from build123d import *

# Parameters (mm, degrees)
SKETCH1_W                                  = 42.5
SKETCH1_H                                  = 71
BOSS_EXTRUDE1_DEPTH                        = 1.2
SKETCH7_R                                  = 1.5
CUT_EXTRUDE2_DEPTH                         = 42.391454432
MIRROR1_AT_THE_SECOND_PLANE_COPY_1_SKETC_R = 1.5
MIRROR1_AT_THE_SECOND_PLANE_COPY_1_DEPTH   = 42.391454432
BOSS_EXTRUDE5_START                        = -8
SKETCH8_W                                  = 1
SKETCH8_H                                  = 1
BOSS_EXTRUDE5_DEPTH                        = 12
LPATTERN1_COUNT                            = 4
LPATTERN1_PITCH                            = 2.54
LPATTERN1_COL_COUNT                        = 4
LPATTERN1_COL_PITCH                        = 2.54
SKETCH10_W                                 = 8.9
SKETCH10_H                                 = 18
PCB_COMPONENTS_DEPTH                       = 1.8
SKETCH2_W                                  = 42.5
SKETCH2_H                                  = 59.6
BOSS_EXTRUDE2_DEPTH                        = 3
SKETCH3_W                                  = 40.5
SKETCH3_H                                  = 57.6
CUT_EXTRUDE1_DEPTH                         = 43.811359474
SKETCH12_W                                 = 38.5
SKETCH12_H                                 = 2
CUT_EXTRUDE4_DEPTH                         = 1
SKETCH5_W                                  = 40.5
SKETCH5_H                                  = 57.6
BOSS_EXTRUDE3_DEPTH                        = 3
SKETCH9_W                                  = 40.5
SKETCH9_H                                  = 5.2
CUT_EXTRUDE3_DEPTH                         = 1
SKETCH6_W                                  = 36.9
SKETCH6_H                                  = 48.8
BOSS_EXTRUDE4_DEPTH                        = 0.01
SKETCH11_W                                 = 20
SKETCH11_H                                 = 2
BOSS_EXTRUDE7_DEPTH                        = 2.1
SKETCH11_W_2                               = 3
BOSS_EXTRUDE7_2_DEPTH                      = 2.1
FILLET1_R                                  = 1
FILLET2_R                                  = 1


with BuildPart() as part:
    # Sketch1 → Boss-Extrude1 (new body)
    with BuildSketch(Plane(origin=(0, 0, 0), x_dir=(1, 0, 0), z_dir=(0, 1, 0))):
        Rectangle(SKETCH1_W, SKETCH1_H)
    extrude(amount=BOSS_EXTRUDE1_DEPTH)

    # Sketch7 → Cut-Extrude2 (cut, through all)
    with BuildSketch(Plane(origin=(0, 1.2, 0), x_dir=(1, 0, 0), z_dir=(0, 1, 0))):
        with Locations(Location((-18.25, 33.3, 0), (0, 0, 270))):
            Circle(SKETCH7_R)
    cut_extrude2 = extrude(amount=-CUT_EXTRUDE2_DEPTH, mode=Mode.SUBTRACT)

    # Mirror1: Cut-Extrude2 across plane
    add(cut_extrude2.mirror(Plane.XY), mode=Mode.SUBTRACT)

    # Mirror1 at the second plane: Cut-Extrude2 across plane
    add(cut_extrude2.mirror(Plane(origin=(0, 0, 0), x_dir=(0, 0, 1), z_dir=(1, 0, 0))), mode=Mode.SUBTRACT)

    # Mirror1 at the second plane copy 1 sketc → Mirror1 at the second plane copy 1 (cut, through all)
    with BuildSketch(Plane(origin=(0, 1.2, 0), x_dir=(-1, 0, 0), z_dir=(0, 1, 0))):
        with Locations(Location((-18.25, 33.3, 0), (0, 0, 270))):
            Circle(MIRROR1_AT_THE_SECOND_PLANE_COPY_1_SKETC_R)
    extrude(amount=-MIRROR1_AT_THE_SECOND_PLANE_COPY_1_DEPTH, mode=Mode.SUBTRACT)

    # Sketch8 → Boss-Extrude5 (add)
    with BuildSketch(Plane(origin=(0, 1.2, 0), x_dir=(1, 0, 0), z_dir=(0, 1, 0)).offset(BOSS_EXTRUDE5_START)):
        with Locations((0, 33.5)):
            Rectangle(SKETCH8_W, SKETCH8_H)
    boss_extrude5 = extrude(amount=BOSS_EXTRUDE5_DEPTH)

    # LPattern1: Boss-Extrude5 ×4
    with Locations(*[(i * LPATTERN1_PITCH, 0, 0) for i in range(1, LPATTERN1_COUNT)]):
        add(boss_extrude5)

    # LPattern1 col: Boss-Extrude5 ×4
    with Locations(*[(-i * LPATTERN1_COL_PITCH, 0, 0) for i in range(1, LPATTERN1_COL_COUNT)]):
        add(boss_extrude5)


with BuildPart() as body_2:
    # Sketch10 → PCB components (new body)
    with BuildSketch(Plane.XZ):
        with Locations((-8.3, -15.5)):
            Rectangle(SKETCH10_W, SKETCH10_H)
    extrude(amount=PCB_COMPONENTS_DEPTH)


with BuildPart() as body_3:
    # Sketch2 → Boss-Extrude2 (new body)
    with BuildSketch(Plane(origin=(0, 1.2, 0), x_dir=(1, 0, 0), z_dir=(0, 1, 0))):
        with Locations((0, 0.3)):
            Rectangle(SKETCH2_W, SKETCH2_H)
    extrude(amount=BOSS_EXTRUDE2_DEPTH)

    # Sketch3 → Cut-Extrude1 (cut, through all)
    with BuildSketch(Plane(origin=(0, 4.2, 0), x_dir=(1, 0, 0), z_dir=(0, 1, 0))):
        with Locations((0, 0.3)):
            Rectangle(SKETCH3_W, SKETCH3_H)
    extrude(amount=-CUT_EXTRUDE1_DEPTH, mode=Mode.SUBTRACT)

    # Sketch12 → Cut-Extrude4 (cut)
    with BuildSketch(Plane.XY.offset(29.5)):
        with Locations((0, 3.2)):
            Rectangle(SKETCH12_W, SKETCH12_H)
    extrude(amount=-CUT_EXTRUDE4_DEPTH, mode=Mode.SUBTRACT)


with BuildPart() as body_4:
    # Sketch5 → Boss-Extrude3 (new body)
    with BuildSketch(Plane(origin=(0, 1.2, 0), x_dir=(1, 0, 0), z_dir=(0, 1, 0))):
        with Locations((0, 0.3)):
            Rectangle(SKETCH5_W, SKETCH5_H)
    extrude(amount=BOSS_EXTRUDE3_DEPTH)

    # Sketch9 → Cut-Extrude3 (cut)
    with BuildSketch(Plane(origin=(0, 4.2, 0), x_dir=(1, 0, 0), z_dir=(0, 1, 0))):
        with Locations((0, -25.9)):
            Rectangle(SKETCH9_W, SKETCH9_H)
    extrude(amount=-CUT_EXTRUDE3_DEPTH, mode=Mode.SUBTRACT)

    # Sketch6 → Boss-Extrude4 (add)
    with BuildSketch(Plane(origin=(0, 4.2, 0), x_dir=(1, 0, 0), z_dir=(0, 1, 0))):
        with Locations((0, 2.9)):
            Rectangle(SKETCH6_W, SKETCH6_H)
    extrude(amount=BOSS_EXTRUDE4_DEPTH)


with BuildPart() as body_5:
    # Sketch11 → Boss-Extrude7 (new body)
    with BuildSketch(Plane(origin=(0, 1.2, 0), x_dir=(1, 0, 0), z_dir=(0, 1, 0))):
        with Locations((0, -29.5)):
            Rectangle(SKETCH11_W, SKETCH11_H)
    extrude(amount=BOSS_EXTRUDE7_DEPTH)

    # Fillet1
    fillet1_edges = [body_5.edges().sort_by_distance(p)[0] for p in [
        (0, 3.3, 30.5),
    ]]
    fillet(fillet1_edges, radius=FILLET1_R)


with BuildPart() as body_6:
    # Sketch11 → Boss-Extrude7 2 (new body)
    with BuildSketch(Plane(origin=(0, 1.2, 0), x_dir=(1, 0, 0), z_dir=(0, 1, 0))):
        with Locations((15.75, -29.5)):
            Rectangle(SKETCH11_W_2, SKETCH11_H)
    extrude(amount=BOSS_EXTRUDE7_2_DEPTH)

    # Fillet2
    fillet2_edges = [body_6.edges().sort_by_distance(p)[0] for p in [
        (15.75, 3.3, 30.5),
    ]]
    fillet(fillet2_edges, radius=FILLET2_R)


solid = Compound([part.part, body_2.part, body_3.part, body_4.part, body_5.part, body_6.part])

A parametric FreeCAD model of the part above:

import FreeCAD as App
import Part
import Sketcher
Q = App.Units.Quantity


def edges_at(feature, points):
    """Names of the edges that pass closest to the given points."""
    edges = feature.Shape.Edges
    near = lambda p: min(range(len(edges)), key=lambda i: edges[i].distToShape(Part.Vertex(*p))[0])
    return sorted({f"Edge{near(p) + 1}" for p in points})

doc = App.newDocument("Part")
body = doc.addObject("PartDesign::Body", "Body")

sketch1 = body.newObject("Sketcher::SketchObject", "Sketch")
sketch1.AttachmentSupport = (doc.getObject("XZ_Plane"), [""])
sketch1.MapMode = "FlatFace"
sketch1.addGeometry([
    Part.LineSegment(App.Vector(-21, -36, 0), App.Vector(-21, 36, 0)),
    Part.LineSegment(App.Vector(-21, 36, 0), App.Vector(21, 36, 0)),
    Part.LineSegment(App.Vector(21, 36, 0), App.Vector(21, -36, 0)),
    Part.LineSegment(App.Vector(21, -36, 0), App.Vector(-21, -36, 0)),
], False)
sketch1.addConstraint([
    Sketcher.Constraint("Coincident", 0, 2, 1, 1),
    Sketcher.Constraint("Coincident", 1, 2, 2, 1),
    Sketcher.Constraint("Coincident", 2, 2, 3, 1),
    Sketcher.Constraint("Coincident", 3, 2, 0, 1),
    Sketcher.Constraint("Vertical", 0),
    Sketcher.Constraint("Horizontal", 1),
    Sketcher.Constraint("Vertical", 2),
    Sketcher.Constraint("Horizontal", 3),
    Sketcher.Constraint("Symmetric", 0, 2, 2, 2, -1, 1),
    Sketcher.Constraint("DistanceY", 0, 1, 0, 2, Q("71 mm")),
    Sketcher.Constraint("DistanceX", 1, 1, 1, 2, Q("42.5 mm")),
])
pad1 = body.newObject("PartDesign::Pad", "Pad")
pad1.Profile = sketch1
pad1.Length = 1.2
pad1.Reversed = True

sketch2 = body.newObject("Sketcher::SketchObject", "Sketch001")
sketch2.AttachmentSupport = (doc.getObject("XZ_Plane"), [""])
sketch2.MapMode = "FlatFace"
sketch2.AttachmentOffset = App.Placement(App.Vector(0, 0, -1.2), App.Rotation())
sketch2.addGeometry(Part.Circle(App.Vector(-18.2, -33.3, 0), App.Vector(0, 0, 1), 1.5), False)
sketch2.addConstraint([
    Sketcher.Constraint("Diameter", 0, Q("3 mm")),
    Sketcher.Constraint("DistanceY", 0, 3, -1, 1, Q("33.3 mm")),
    Sketcher.Constraint("DistanceX", 0, 3, -1, 1, Q("18.25 mm")),
])
pocket1 = body.newObject("PartDesign::Pocket", "Pocket")
pocket1.Profile = sketch2
pocket1.Type = "ThroughAll"
pocket1.Reversed = True
doc.recompute()

mirrored = body.newObject("PartDesign::Mirrored", "Mirrored")
mirrored.Originals = [pocket1]
mirrored.MirrorPlane = (doc.getObject("XY_Plane"), [""])
body.Tip = mirrored
doc.recompute()

mirrored2 = body.newObject("PartDesign::Mirrored", "Mirrored001")
mirrored2.Originals = [pocket1]
mirrored2.MirrorPlane = (doc.getObject("YZ_Plane"), [""])
body.Tip = mirrored2

sketch3 = body.newObject("Sketcher::SketchObject", "Sketch002")
sketch3.AttachmentSupport = (doc.getObject("XZ_Plane"), [""])
sketch3.MapMode = "FlatFace"
sketch3.AttachmentOffset = App.Placement(App.Vector(0, 0, -1.2), App.Rotation())
sketch3.addGeometry(Part.Circle(App.Vector(18.2, 33.3, 0), App.Vector(0, 0, 1), 1.5), False)
sketch3.addConstraint([
    Sketcher.Constraint("Diameter", 0, Q("3 mm")),
    Sketcher.Constraint("DistanceY", -1, 1, 0, 3, Q("33.3 mm")),
    Sketcher.Constraint("DistanceX", -1, 1, 0, 3, Q("18.25 mm")),
])
pocket2 = body.newObject("PartDesign::Pocket", "Pocket001")
pocket2.Profile = sketch3
pocket2.Type = "ThroughAll"
pocket2.Reversed = True

sketch4 = body.newObject("Sketcher::SketchObject", "Sketch003")
sketch4.AttachmentSupport = (doc.getObject("XZ_Plane"), [""])
sketch4.MapMode = "FlatFace"
sketch4.AttachmentOffset = App.Placement(App.Vector(0, 0, 6.8), App.Rotation())
sketch4.addGeometry([
    Part.LineSegment(App.Vector(-0.5, -34, 0), App.Vector(-0.5, -33, 0)),
    Part.LineSegment(App.Vector(-0.5, -33, 0), App.Vector(0.5, -33, 0)),
    Part.LineSegment(App.Vector(0.5, -33, 0), App.Vector(0.5, -34, 0)),
    Part.LineSegment(App.Vector(0.5, -34, 0), App.Vector(-0.5, -34, 0)),
], False)
sketch4.addConstraint([
    Sketcher.Constraint("Coincident", 0, 2, 1, 1),
    Sketcher.Constraint("Coincident", 1, 2, 2, 1),
    Sketcher.Constraint("Coincident", 2, 2, 3, 1),
    Sketcher.Constraint("Coincident", 3, 2, 0, 1),
    Sketcher.Constraint("Vertical", 0),
    Sketcher.Constraint("Horizontal", 1),
    Sketcher.Constraint("Vertical", 2),
    Sketcher.Constraint("Horizontal", 3),
    Sketcher.Constraint("Equal", 3, 0),
    Sketcher.Constraint("DistanceX", 1, 1, 1, 2, Q("1 mm")),
    Sketcher.Constraint("DistanceY", 0, 2, -1, 1, Q("33 mm")),
    Sketcher.Constraint("DistanceX", 0, 2, -1, 1, Q("0.5 mm")),
])
pad2 = body.newObject("PartDesign::Pad", "Pad001")
pad2.Profile = sketch4
pad2.Length = 12
pad2.Reversed = True
doc.recompute()

linearpattern = body.newObject("PartDesign::LinearPattern", "LinearPattern")
linearpattern.Originals = [pad2]
linearpattern.Direction = (doc.getObject("X_Axis"), [""])
linearpattern.Mode = "offset"
linearpattern.Offset = 2.54
linearpattern.Occurrences = 4
body.Tip = linearpattern
doc.recompute()

linearpattern2 = body.newObject("PartDesign::LinearPattern", "LinearPattern001")
linearpattern2.Originals = [pad2]
linearpattern2.Direction = (doc.getObject("X_Axis"), [""])
linearpattern2.Mode = "offset"
linearpattern2.Offset = 2.54
linearpattern2.Occurrences = 4
linearpattern2.Reversed = True
body.Tip = linearpattern2
body2 = doc.addObject("PartDesign::Body", "Body001")

sketch5 = body2.newObject("Sketcher::SketchObject", "Sketch004")
sketch5.AttachmentSupport = (doc.getObject("XZ_Plane001"), [""])
sketch5.MapMode = "FlatFace"
sketch5.addGeometry([
    Part.LineSegment(App.Vector(-13, -6, 0), App.Vector(-13, -24, 0)),
    Part.LineSegment(App.Vector(-13, -24, 0), App.Vector(-4, -24, 0)),
    Part.LineSegment(App.Vector(-4, -24, 0), App.Vector(-4, -6, 0)),
    Part.LineSegment(App.Vector(-4, -6, 0), App.Vector(-13, -6, 0)),
], False)
sketch5.addConstraint([
    Sketcher.Constraint("Coincident", 0, 2, 1, 1),
    Sketcher.Constraint("Coincident", 1, 2, 2, 1),
    Sketcher.Constraint("Coincident", 2, 2, 3, 1),
    Sketcher.Constraint("Coincident", 3, 2, 0, 1),
    Sketcher.Constraint("Vertical", 0),
    Sketcher.Constraint("Horizontal", 1),
    Sketcher.Constraint("Vertical", 2),
    Sketcher.Constraint("Horizontal", 3),
    Sketcher.Constraint("DistanceY", 0, 2, 0, 1, Q("18 mm")),
    Sketcher.Constraint("DistanceX", 1, 1, 1, 2, Q("8.9 mm")),
    Sketcher.Constraint("DistanceY", 0, 2, -1, 1, Q("24.5 mm")),
    Sketcher.Constraint("DistanceX", 0, 2, -1, 1, Q("12.75 mm")),
])
pad3 = body2.newObject("PartDesign::Pad", "Pad002")
pad3.Profile = sketch5
pad3.Length = 1.8
body3 = doc.addObject("PartDesign::Body", "Body002")

sketch6 = body3.newObject("Sketcher::SketchObject", "Sketch005")
sketch6.AttachmentSupport = (doc.getObject("XZ_Plane002"), [""])
sketch6.MapMode = "FlatFace"
sketch6.AttachmentOffset = App.Placement(App.Vector(0, 0, -1.2), App.Rotation())
sketch6.addGeometry([
    Part.LineSegment(App.Vector(-21, -30, 0), App.Vector(-21, 30, 0)),
    Part.LineSegment(App.Vector(-21, 30, 0), App.Vector(21, 30, 0)),
    Part.LineSegment(App.Vector(21, 30, 0), App.Vector(21, -30, 0)),
    Part.LineSegment(App.Vector(21, -30, 0), App.Vector(-21, -30, 0)),
], False)
sketch6.addConstraint([
    Sketcher.Constraint("Coincident", 0, 2, 1, 1),
    Sketcher.Constraint("Coincident", 1, 2, 2, 1),
    Sketcher.Constraint("Coincident", 2, 2, 3, 1),
    Sketcher.Constraint("Coincident", 3, 2, 0, 1),
    Sketcher.Constraint("Vertical", 0),
    Sketcher.Constraint("Horizontal", 1),
    Sketcher.Constraint("Vertical", 2),
    Sketcher.Constraint("Horizontal", 3),
    Sketcher.Constraint("DistanceX", 1, 1, 1, 2, Q("42.5 mm")),
    Sketcher.Constraint("DistanceY", 0, 1, 0, 2, Q("59.6 mm")),
    Sketcher.Constraint("DistanceY", -1, 1, 0, 2, Q("29.5 mm")),
    Sketcher.Constraint("DistanceX", 0, 2, -1, 1, Q("21.25 mm")),
])
pad4 = body3.newObject("PartDesign::Pad", "Pad003")
pad4.Profile = sketch6
pad4.Length = 3
pad4.Reversed = True

sketch7 = body3.newObject("Sketcher::SketchObject", "Sketch006")
sketch7.AttachmentSupport = (doc.getObject("XZ_Plane002"), [""])
sketch7.MapMode = "FlatFace"
sketch7.AttachmentOffset = App.Placement(App.Vector(0, 0, -4.2), App.Rotation())
sketch7.addGeometry([
    Part.LineSegment(App.Vector(-20, -29, 0), App.Vector(-20, 28, 0)),
    Part.LineSegment(App.Vector(-20, 28, 0), App.Vector(20, 28, 0)),
    Part.LineSegment(App.Vector(20, 28, 0), App.Vector(20, -29, 0)),
    Part.LineSegment(App.Vector(20, -29, 0), App.Vector(-20, -29, 0)),
], False)
sketch7.addConstraint([
    Sketcher.Constraint("Coincident", 0, 2, 1, 1),
    Sketcher.Constraint("Coincident", 1, 2, 2, 1),
    Sketcher.Constraint("Coincident", 2, 2, 3, 1),
    Sketcher.Constraint("Coincident", 3, 2, 0, 1),
    Sketcher.Constraint("Vertical", 0),
    Sketcher.Constraint("Horizontal", 1),
    Sketcher.Constraint("Vertical", 2),
    Sketcher.Constraint("Horizontal", 3),
    Sketcher.Constraint("DistanceX", 1, 1, 1, 2, Q("40.5 mm")),
    Sketcher.Constraint("DistanceY", 0, 1, 0, 2, Q("57.6 mm")),
    Sketcher.Constraint("DistanceY", -1, 1, 0, 2, Q("28.5 mm")),
    Sketcher.Constraint("DistanceX", 0, 2, -1, 1, Q("20.25 mm")),
])
pocket3 = body3.newObject("PartDesign::Pocket", "Pocket002")
pocket3.Profile = sketch7
pocket3.Type = "ThroughAll"
pocket3.Reversed = True

sketch8 = body3.newObject("Sketcher::SketchObject", "Sketch007")
sketch8.AttachmentSupport = (doc.getObject("XY_Plane002"), [""])
sketch8.MapMode = "FlatFace"
sketch8.AttachmentOffset = App.Placement(App.Vector(0, 0, 29.5), App.Rotation())
sketch8.addGeometry([
    Part.LineSegment(App.Vector(-19.2, 4.2, 0), App.Vector(-19.2, 2.2, 0)),
    Part.LineSegment(App.Vector(-19.2, 2.2, 0), App.Vector(19.2, 2.2, 0)),
    Part.LineSegment(App.Vector(19.2, 2.2, 0), App.Vector(19.2, 4.2, 0)),
    Part.LineSegment(App.Vector(19.2, 4.2, 0), App.Vector(-19.2, 4.2, 0)),
], False)
sketch8.addConstraint([
    Sketcher.Constraint("Coincident", 0, 2, 1, 1),
    Sketcher.Constraint("Coincident", 1, 2, 2, 1),
    Sketcher.Constraint("Coincident", 2, 2, 3, 1),
    Sketcher.Constraint("Coincident", 3, 2, 0, 1),
    Sketcher.Constraint("Vertical", 0),
    Sketcher.Constraint("Horizontal", 1),
    Sketcher.Constraint("Vertical", 2),
    Sketcher.Constraint("Horizontal", 3),
    Sketcher.Constraint("DistanceY", 0, 2, 0, 1, Q("2 mm")),
    Sketcher.Constraint("DistanceX", 1, 1, 1, 2, Q("38.5 mm")),
    Sketcher.Constraint("DistanceY", -1, 1, 0, 2, Q("2.2 mm")),
    Sketcher.Constraint("DistanceX", 0, 2, -1, 1, Q("19.25 mm")),
])
pocket4 = body3.newObject("PartDesign::Pocket", "Pocket003")
pocket4.Profile = sketch8
pocket4.Length = 1
body4 = doc.addObject("PartDesign::Body", "Body003")

sketch9 = body4.newObject("Sketcher::SketchObject", "Sketch008")
sketch9.AttachmentSupport = (doc.getObject("XZ_Plane003"), [""])
sketch9.MapMode = "FlatFace"
sketch9.AttachmentOffset = App.Placement(App.Vector(0, 0, -1.2), App.Rotation())
sketch9.addGeometry([
    Part.LineSegment(App.Vector(-20, -29, 0), App.Vector(-20, 28, 0)),
    Part.LineSegment(App.Vector(-20, 28, 0), App.Vector(20, 28, 0)),
    Part.LineSegment(App.Vector(20, 28, 0), App.Vector(20, -29, 0)),
    Part.LineSegment(App.Vector(20, -29, 0), App.Vector(-20, -29, 0)),
], False)
sketch9.addConstraint([
    Sketcher.Constraint("Coincident", 0, 2, 1, 1),
    Sketcher.Constraint("Coincident", 1, 2, 2, 1),
    Sketcher.Constraint("Coincident", 2, 2, 3, 1),
    Sketcher.Constraint("Coincident", 3, 2, 0, 1),
    Sketcher.Constraint("Vertical", 0),
    Sketcher.Constraint("Horizontal", 1),
    Sketcher.Constraint("Vertical", 2),
    Sketcher.Constraint("Horizontal", 3),
    Sketcher.Constraint("DistanceX", 1, 1, 1, 2, Q("40.5 mm")),
    Sketcher.Constraint("DistanceY", 0, 1, 0, 2, Q("57.6 mm")),
    Sketcher.Constraint("DistanceY", -1, 1, 0, 2, Q("28.5 mm")),
    Sketcher.Constraint("DistanceX", 0, 2, -1, 1, Q("20.25 mm")),
])
pad5 = body4.newObject("PartDesign::Pad", "Pad004")
pad5.Profile = sketch9
pad5.Length = 3
pad5.Reversed = True

sketch10 = body4.newObject("Sketcher::SketchObject", "Sketch009")
sketch10.AttachmentSupport = (doc.getObject("XZ_Plane003"), [""])
sketch10.MapMode = "FlatFace"
sketch10.AttachmentOffset = App.Placement(App.Vector(0, 0, -4.2), App.Rotation())
sketch10.addGeometry([
    Part.LineSegment(App.Vector(-20, 23, 0), App.Vector(-20, 28, 0)),
    Part.LineSegment(App.Vector(-20, 28, 0), App.Vector(20, 28, 0)),
    Part.LineSegment(App.Vector(20, 28, 0), App.Vector(20, 23, 0)),
    Part.LineSegment(App.Vector(20, 23, 0), App.Vector(-20, 23, 0)),
], False)
sketch10.addConstraint([
    Sketcher.Constraint("Coincident", 0, 2, 1, 1),
    Sketcher.Constraint("Coincident", 1, 2, 2, 1),
    Sketcher.Constraint("Coincident", 2, 2, 3, 1),
    Sketcher.Constraint("Coincident", 3, 2, 0, 1),
    Sketcher.Constraint("Vertical", 0),
    Sketcher.Constraint("Horizontal", 1),
    Sketcher.Constraint("Vertical", 2),
    Sketcher.Constraint("Horizontal", 3),
    Sketcher.Constraint("DistanceX", 1, 1, 1, 2, Q("40.5 mm")),
    Sketcher.Constraint("DistanceY", 0, 1, 0, 2, Q("5.2 mm")),
    Sketcher.Constraint("DistanceY", -1, 1, 0, 2, Q("28.5 mm")),
    Sketcher.Constraint("DistanceX", 0, 2, -1, 1, Q("20.25 mm")),
])
pocket5 = body4.newObject("PartDesign::Pocket", "Pocket004")
pocket5.Profile = sketch10
pocket5.Length = 1
pocket5.Reversed = True

sketch11 = body4.newObject("Sketcher::SketchObject", "Sketch010")
sketch11.AttachmentSupport = (doc.getObject("XZ_Plane003"), [""])
sketch11.MapMode = "FlatFace"
sketch11.AttachmentOffset = App.Placement(App.Vector(0, 0, -4.2), App.Rotation())
sketch11.addGeometry([
    Part.LineSegment(App.Vector(-18, -27, 0), App.Vector(-18, 22, 0)),
    Part.LineSegment(App.Vector(-18, 22, 0), App.Vector(18, 22, 0)),
    Part.LineSegment(App.Vector(18, 22, 0), App.Vector(18, -27, 0)),
    Part.LineSegment(App.Vector(18, -27, 0), App.Vector(-18, -27, 0)),
], False)
sketch11.addConstraint([
    Sketcher.Constraint("Coincident", 0, 2, 1, 1),
    Sketcher.Constraint("Coincident", 1, 2, 2, 1),
    Sketcher.Constraint("Coincident", 2, 2, 3, 1),
    Sketcher.Constraint("Coincident", 3, 2, 0, 1),
    Sketcher.Constraint("Vertical", 0),
    Sketcher.Constraint("Horizontal", 1),
    Sketcher.Constraint("Vertical", 2),
    Sketcher.Constraint("Horizontal", 3),
    Sketcher.Constraint("DistanceX", 1, 1, 1, 2, Q("36.9 mm")),
    Sketcher.Constraint("DistanceY", 0, 1, 0, 2, Q("48.8 mm")),
    Sketcher.Constraint("DistanceY", -1, 1, 0, 2, Q("21.5 mm")),
    Sketcher.Constraint("DistanceX", 0, 2, -1, 1, Q("18.45 mm")),
])
pad6 = body4.newObject("PartDesign::Pad", "Pad005")
pad6.Profile = sketch11
pad6.Length = 0.01
pad6.Reversed = True
body5 = doc.addObject("PartDesign::Body", "Body004")

sketch12 = body5.newObject("Sketcher::SketchObject", "Sketch011")
sketch12.AttachmentSupport = (doc.getObject("XZ_Plane004"), [""])
sketch12.MapMode = "FlatFace"
sketch12.AttachmentOffset = App.Placement(App.Vector(0, 0, -1.2), App.Rotation())
sketch12.addGeometry([
    Part.LineSegment(App.Vector(-10, 28.5, 0), App.Vector(-10, 30.5, 0)),
    Part.LineSegment(App.Vector(-10, 30.5, 0), App.Vector(10, 30.5, 0)),
    Part.LineSegment(App.Vector(10, 30.5, 0), App.Vector(10, 28.5, 0)),
    Part.LineSegment(App.Vector(10, 28.5, 0), App.Vector(-10, 28.5, 0)),
], False)
sketch12.addConstraint([
    Sketcher.Constraint("Coincident", 0, 2, 1, 1),
    Sketcher.Constraint("Coincident", 1, 2, 2, 1),
    Sketcher.Constraint("Coincident", 2, 2, 3, 1),
    Sketcher.Constraint("Coincident", 3, 2, 0, 1),
    Sketcher.Constraint("Vertical", 0),
    Sketcher.Constraint("Horizontal", 1),
    Sketcher.Constraint("Vertical", 2),
    Sketcher.Constraint("Horizontal", 3),
    Sketcher.Constraint("DistanceX", 1, 1, 1, 2, Q("20 mm")),
    Sketcher.Constraint("DistanceY", 0, 1, 0, 2, Q("2 mm")),
    Sketcher.Constraint("DistanceX", 0, 2, -1, 1, Q("10 mm")),
    Sketcher.Constraint("DistanceY", -1, 1, 0, 2, Q("30.5 mm")),
])
pad7 = body5.newObject("PartDesign::Pad", "Pad006")
pad7.Profile = sketch12
pad7.Length = 2.1
pad7.Reversed = True
doc.recompute()

fillet = body5.newObject("PartDesign::Fillet", "Fillet")
fillet.Base = (pad7, edges_at(pad7, [(0, 3.3, 30.5)]))
fillet.Radius = 1
body6 = doc.addObject("PartDesign::Body", "Body005")

sketch13 = body6.newObject("Sketcher::SketchObject", "Sketch012")
sketch13.AttachmentSupport = (doc.getObject("XZ_Plane005"), [""])
sketch13.MapMode = "FlatFace"
sketch13.AttachmentOffset = App.Placement(App.Vector(0, 0, -1.2), App.Rotation())
sketch13.addGeometry([
    Part.LineSegment(App.Vector(14.2, 28.5, 0), App.Vector(14.2, 30.5, 0)),
    Part.LineSegment(App.Vector(14.2, 30.5, 0), App.Vector(17.2, 30.5, 0)),
    Part.LineSegment(App.Vector(17.2, 30.5, 0), App.Vector(17.2, 28.5, 0)),
    Part.LineSegment(App.Vector(17.2, 28.5, 0), App.Vector(14.2, 28.5, 0)),
], False)
sketch13.addConstraint([
    Sketcher.Constraint("Coincident", 0, 2, 1, 1),
    Sketcher.Constraint("Coincident", 1, 2, 2, 1),
    Sketcher.Constraint("Coincident", 2, 2, 3, 1),
    Sketcher.Constraint("Coincident", 3, 2, 0, 1),
    Sketcher.Constraint("Vertical", 0),
    Sketcher.Constraint("Horizontal", 1),
    Sketcher.Constraint("Vertical", 2),
    Sketcher.Constraint("Horizontal", 3),
    Sketcher.Constraint("DistanceX", 1, 1, 1, 2, Q("3 mm")),
    Sketcher.Constraint("DistanceY", 0, 1, 0, 2, Q("2 mm")),
    Sketcher.Constraint("DistanceY", -1, 1, 0, 2, Q("30.5 mm")),
    Sketcher.Constraint("DistanceX", -1, 1, 0, 2, Q("14.25 mm")),
])
pad8 = body6.newObject("PartDesign::Pad", "Pad007")
pad8.Profile = sketch13
pad8.Length = 2.1
pad8.Reversed = True
doc.recompute()

fillet2 = body6.newObject("PartDesign::Fillet", "Fillet001")
fillet2.Base = (pad8, edges_at(pad8, [(15.75, 3.3, 30.5)]))
fillet2.Radius = 1

doc.recompute()
